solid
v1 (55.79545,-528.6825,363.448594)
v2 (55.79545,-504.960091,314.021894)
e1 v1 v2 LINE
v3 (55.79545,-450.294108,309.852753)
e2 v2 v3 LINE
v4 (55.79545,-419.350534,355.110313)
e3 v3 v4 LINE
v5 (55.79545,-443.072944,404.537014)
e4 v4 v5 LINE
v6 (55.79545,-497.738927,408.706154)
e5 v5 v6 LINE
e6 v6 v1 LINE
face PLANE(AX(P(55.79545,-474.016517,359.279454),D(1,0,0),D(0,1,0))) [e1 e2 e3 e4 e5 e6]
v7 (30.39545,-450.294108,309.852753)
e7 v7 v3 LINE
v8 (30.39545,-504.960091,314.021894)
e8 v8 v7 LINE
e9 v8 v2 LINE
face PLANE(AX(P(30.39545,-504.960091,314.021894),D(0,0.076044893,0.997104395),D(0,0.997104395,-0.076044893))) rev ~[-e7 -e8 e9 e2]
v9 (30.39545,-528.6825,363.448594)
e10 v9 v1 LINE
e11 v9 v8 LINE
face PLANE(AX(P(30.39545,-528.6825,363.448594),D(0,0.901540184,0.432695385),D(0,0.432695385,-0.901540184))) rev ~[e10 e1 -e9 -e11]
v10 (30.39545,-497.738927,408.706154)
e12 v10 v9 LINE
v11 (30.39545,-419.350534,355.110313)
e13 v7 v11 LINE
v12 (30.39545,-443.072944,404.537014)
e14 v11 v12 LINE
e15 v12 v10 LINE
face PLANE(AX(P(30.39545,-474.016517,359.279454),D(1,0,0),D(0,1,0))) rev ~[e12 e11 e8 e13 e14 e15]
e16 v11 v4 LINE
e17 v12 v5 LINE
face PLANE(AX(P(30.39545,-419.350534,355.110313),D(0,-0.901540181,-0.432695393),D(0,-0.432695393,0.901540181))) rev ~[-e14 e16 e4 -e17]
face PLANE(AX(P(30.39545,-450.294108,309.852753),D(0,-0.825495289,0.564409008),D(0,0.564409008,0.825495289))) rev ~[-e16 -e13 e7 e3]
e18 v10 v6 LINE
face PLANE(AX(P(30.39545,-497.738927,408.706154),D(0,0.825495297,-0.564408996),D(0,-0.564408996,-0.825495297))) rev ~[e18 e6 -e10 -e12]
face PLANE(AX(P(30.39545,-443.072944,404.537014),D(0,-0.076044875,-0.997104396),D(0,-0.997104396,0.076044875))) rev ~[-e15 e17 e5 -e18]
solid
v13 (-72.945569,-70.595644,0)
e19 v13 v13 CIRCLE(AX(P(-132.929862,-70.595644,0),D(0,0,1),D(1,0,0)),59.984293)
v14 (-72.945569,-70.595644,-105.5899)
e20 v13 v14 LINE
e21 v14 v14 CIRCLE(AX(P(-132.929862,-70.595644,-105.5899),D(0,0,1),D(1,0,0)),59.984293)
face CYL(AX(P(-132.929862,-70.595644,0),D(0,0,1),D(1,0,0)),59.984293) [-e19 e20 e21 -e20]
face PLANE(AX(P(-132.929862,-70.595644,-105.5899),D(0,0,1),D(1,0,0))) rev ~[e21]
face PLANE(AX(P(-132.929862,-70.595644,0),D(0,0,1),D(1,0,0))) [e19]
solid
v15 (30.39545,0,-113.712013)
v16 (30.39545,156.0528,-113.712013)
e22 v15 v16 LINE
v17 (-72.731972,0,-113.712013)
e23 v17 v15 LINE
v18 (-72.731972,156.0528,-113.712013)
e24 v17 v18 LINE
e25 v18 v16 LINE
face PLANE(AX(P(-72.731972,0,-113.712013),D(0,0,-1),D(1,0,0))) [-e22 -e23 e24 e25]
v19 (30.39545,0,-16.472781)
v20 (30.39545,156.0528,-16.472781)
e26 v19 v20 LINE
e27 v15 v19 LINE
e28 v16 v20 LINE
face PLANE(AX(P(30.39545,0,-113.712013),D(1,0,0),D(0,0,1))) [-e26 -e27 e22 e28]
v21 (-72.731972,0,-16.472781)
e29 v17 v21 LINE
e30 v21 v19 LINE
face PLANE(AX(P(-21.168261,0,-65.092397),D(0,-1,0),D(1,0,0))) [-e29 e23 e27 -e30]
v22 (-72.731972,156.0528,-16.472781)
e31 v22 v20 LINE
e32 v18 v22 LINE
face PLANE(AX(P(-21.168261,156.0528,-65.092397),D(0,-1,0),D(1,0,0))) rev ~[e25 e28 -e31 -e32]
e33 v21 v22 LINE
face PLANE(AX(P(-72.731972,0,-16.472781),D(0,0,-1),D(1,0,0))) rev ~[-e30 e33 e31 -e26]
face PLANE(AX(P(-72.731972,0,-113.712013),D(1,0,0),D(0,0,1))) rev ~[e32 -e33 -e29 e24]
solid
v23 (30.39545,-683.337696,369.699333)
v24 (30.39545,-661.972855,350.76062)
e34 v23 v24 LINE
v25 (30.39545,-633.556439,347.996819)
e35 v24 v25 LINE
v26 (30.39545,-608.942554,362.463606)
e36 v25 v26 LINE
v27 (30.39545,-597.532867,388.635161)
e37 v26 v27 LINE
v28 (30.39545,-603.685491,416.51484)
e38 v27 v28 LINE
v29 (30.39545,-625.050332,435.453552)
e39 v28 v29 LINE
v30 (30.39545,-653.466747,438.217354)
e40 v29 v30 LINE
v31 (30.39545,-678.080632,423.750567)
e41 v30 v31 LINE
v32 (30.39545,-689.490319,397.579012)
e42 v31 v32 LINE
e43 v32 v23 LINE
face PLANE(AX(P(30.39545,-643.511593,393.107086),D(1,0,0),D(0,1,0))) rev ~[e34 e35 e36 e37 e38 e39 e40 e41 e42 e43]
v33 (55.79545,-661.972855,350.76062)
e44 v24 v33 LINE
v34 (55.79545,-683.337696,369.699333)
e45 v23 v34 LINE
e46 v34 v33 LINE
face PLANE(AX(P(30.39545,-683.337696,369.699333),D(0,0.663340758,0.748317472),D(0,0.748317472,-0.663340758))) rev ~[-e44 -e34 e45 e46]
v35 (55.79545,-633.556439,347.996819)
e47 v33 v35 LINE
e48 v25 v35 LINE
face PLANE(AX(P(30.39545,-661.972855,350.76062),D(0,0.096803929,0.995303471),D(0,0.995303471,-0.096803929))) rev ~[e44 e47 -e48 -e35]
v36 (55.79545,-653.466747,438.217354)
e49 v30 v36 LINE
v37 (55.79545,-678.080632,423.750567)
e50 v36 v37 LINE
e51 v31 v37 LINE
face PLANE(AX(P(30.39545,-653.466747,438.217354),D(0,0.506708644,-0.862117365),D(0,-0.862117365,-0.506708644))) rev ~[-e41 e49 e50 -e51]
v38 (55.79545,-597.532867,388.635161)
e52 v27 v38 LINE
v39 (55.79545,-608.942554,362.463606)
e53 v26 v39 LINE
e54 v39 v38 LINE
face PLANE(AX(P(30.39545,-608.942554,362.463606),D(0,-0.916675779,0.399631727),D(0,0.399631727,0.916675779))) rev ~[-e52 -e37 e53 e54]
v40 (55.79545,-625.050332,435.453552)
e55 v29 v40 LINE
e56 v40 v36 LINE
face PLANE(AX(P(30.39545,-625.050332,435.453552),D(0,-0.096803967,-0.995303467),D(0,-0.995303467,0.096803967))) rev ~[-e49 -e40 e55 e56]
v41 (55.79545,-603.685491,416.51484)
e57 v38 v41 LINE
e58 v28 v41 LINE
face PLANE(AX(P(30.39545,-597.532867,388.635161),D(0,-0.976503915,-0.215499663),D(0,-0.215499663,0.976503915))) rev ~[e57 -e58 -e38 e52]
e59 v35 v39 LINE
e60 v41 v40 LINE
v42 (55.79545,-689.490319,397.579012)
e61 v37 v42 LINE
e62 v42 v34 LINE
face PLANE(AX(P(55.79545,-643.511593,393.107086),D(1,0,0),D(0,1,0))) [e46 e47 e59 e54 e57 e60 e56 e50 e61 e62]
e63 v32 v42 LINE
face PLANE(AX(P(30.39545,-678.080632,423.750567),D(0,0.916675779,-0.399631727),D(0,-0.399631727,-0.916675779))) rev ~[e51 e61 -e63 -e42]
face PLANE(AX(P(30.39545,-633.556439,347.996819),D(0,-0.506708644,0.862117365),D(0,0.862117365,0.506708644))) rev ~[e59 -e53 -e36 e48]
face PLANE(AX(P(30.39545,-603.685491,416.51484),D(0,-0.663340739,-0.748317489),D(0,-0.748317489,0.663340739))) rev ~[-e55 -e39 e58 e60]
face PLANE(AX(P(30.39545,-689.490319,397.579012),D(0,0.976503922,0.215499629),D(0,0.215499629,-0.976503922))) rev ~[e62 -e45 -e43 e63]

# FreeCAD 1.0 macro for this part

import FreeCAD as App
import Part
import Sketcher
from FreeCAD import Vector
Q = App.Units.Quantity

doc = App.newDocument("Part")
body = doc.addObject("PartDesign::Body", "Body")

# Sketch on XZ plane
sketch1 = doc.addObject("Sketcher::SketchObject", "Sketch")
body.addObject(sketch1)
sketch1.AttachmentSupport = (doc.XZ_Plane, [""])
sketch1.MapMode = "FlatFace"
sketch1.addGeometry(Part.LineSegment(Vector(-72.731972, -16.472781, 0), Vector(-72.731972, -113.712013, 0)), False)
sketch1.addGeometry(Part.LineSegment(Vector(-72.731972, -113.712013, 0), Vector(30.39545, -113.712013, 0)), False)
sketch1.addGeometry(Part.LineSegment(Vector(30.39545, -113.712013, 0), Vector(30.39545, -16.472781, 0)), False)
sketch1.addGeometry(Part.LineSegment(Vector(30.39545, -16.472781, 0), Vector(-72.731972, -16.472781, 0)), False)
sketch1.addConstraint(Sketcher.Constraint("Coincident", 0, 2, 1, 1))
sketch1.addConstraint(Sketcher.Constraint("Coincident", 1, 2, 2, 1))
sketch1.addConstraint(Sketcher.Constraint("Coincident", 2, 2, 3, 1))
sketch1.addConstraint(Sketcher.Constraint("Coincident", 3, 2, 0, 1))
sketch1.addConstraint(Sketcher.Constraint("Vertical", 0))
sketch1.addConstraint(Sketcher.Constraint("Horizontal", 1))
sketch1.addConstraint(Sketcher.Constraint("Vertical", 2))
sketch1.addConstraint(Sketcher.Constraint("Horizontal", 3))
sketch1.addConstraint(Sketcher.Constraint("DistanceX", 1, 1, 1, 2, Q("103.127422 mm")))
sketch1.addConstraint(Sketcher.Constraint("DistanceY", 0, 2, 0, 1, Q("97.239232 mm")))
sketch1.addConstraint(Sketcher.Constraint("DistanceX", 0, 2, -1, 1, Q("72.731972 mm")))
sketch1.addConstraint(Sketcher.Constraint("DistanceY", 2, 2, -1, 1, Q("16.472781 mm")))
pad1 = doc.addObject("PartDesign::Pad", "Pad")
body.addObject(pad1)
pad1.Profile = sketch1
pad1.Length = 156.0528
pad1.Reversed = True
body2 = doc.addObject("PartDesign::Body", "Body001")

# Sketch on XY plane
sketch2 = doc.addObject("Sketcher::SketchObject", "Sketch001")
body2.addObject(sketch2)
sketch2.AttachmentSupport = (doc.getObject("XY_Plane001"), [""])
sketch2.MapMode = "FlatFace"
sketch2.addGeometry(Part.Circle(Vector(-132.929862, -70.595644, 0), Vector(0, 0, 1), 59.984293), False)
sketch2.addConstraint(Sketcher.Constraint("Diameter", 0, Q("119.968586 mm")))
sketch2.addConstraint(Sketcher.Constraint("DistanceX", 0, 3, -1, 1, Q("132.929862 mm")))
sketch2.addConstraint(Sketcher.Constraint("DistanceY", 0, 3, -1, 1, Q("70.595644 mm")))
pad2 = doc.addObject("PartDesign::Pad", "Pad001")
body2.addObject(pad2)
pad2.Profile = sketch2
pad2.Length = 105.5899
pad2.Reversed = True
body3 = doc.addObject("PartDesign::Body", "Body002")
body3.AllowCompound = True

# Sketch on YZ plane
sketch3 = doc.addObject("Sketcher::SketchObject", "Sketch002")
body3.addObject(sketch3)
sketch3.AttachmentSupport = (doc.getObject("YZ_Plane002"), [""])
sketch3.MapMode = "FlatFace"
sketch3.AttachmentOffset = App.Placement(Vector(0, 0, 30.39545), App.Rotation())
sketch3.addGeometry(Part.LineSegment(Vector(-497.738927, 408.706154, 0), Vector(-528.6825, 363.448594, 0)), False)
sketch3.addGeometry(Part.LineSegment(Vector(-528.6825, 363.448594, 0), Vector(-504.960091, 314.021894, 0)), False)
sketch3.addGeometry(Part.LineSegment(Vector(-504.960091, 314.021894, 0), Vector(-450.294108, 309.852753, 0)), False)
sketch3.addGeometry(Part.LineSegment(Vector(-450.294108, 309.852753, 0), Vector(-419.350534, 355.110313, 0)), False)
sketch3.addGeometry(Part.LineSegment(Vector(-419.350534, 355.110313, 0), Vector(-443.072944, 404.537014, 0)), False)
sketch3.addGeometry(Part.LineSegment(Vector(-443.072944, 404.537014, 0), Vector(-497.738927, 408.706154, 0)), False)
sketch3.addGeometry(Part.LineSegment(Vector(-633.556439, 347.996819, 0), Vector(-608.942554, 362.463606, 0)), False)
sketch3.addGeometry(Part.LineSegment(Vector(-608.942554, 362.463606, 0), Vector(-597.532867, 388.635161, 0)), False)
sketch3.addGeometry(Part.LineSegment(Vector(-597.532867, 388.635161, 0), Vector(-603.685491, 416.51484, 0)), False)
sketch3.addGeometry(Part.LineSegment(Vector(-603.685491, 416.51484, 0), Vector(-625.050332, 435.453552, 0)), False)
sketch3.addGeometry(Part.LineSegment(Vector(-625.050332, 435.453552, 0), Vector(-653.466747, 438.217354, 0)), False)
sketch3.addGeometry(Part.LineSegment(Vector(-653.466747, 438.217354, 0), Vector(-678.080632, 423.750567, 0)), False)
sketch3.addGeometry(Part.LineSegment(Vector(-678.080632, 423.750567, 0), Vector(-689.490319, 397.579012, 0)), False)
sketch3.addGeometry(Part.LineSegment(Vector(-689.490319, 397.579012, 0), Vector(-683.337696, 369.699333, 0)), False)
sketch3.addGeometry(Part.LineSegment(Vector(-683.337696, 369.699333, 0), Vector(-661.972855, 350.76062, 0)), False)
sketch3.addGeometry(Part.LineSegment(Vector(-661.972855, 350.76062, 0), Vector(-633.556439, 347.996819, 0)), False)
sketch3.addConstraint(Sketcher.Constraint("Coincident", 0, 2, 1, 1))
sketch3.addConstraint(Sketcher.Constraint("Coincident", 1, 2, 2, 1))
sketch3.addConstraint(Sketcher.Constraint("Coincident", 2, 2, 3, 1))
sketch3.addConstraint(Sketcher.Constraint("Coincident", 3, 2, 4, 1))
sketch3.addConstraint(Sketcher.Constraint("Coincident", 4, 2, 5, 1))
sketch3.addConstraint(Sketcher.Constraint("Coincident", 5, 2, 0, 1))
sketch3.addConstraint(Sketcher.Constraint("Coincident", 6, 2, 7, 1))
sketch3.addConstraint(Sketcher.Constraint("Coincident", 7, 2, 8, 1))
sketch3.addConstraint(Sketcher.Constraint("Coincident", 8, 2, 9, 1))
sketch3.addConstraint(Sketcher.Constraint("Coincident", 9, 2, 10, 1))
sketch3.addConstraint(Sketcher.Constraint("Coincident", 10, 2, 11, 1))
sketch3.addConstraint(Sketcher.Constraint("Coincident", 11, 2, 12, 1))
sketch3.addConstraint(Sketcher.Constraint("Coincident", 12, 2, 13, 1))
sketch3.addConstraint(Sketcher.Constraint("Coincident", 13, 2, 14, 1))
sketch3.addConstraint(Sketcher.Constraint("Coincident", 14, 2, 15, 1))
sketch3.addConstraint(Sketcher.Constraint("Coincident", 15, 2, 6, 1))
sketch3.addConstraint(Sketcher.Constraint("Parallel", 0, 3))
sketch3.addConstraint(Sketcher.Constraint("Parallel", 1, 4))
sketch3.addConstraint(Sketcher.Constraint("Parallel", 2, 5))
sketch3.addConstraint(Sketcher.Constraint("Parallel", 6, 11))
sketch3.addConstraint(Sketcher.Constraint("Parallel", 7, 12))
sketch3.addConstraint(Sketcher.Constraint("Parallel", 8, 13))
sketch3.addConstraint(Sketcher.Constraint("Parallel", 9, 14))
sketch3.addConstraint(Sketcher.Constraint("Parallel", 10, 15))
sketch3.addConstraint(Sketcher.Constraint("Equal", 0, 1))
sketch3.addConstraint(Sketcher.Constraint("Equal", 1, 2))
sketch3.addConstraint(Sketcher.Constraint("Equal", 2, 3))
sketch3.addConstraint(Sketcher.Constraint("Equal", 6, 7))
sketch3.addConstraint(Sketcher.Constraint("Equal", 7, 8))
sketch3.addConstraint(Sketcher.Constraint("Equal", 8, 9))
sketch3.addConstraint(Sketcher.Constraint("Equal", 9, 10))
sketch3.addConstraint(Sketcher.Constraint("Equal", 10, 11))
sketch3.addConstraint(Sketcher.Constraint("Equal", 11, 12))
sketch3.addConstraint(Sketcher.Constraint("Equal", 12, 13))
sketch3.addConstraint(Sketcher.Constraint("DistanceX", 0, 2, -1, 1, Q("528.6825 mm")))
sketch3.addConstraint(Sketcher.Constraint("DistanceY", 1, 2, 0, 2, Q("49.4267 mm")))
sketch3.addConstraint(Sketcher.Constraint("DistanceY", 2, 2, 5, 2, Q("98.853401 mm")))
sketch3.addConstraint(Sketcher.Constraint("DistanceX", 8, 2, 1, 2, Q("98.7254 mm")))
sketch3.addConstraint(Sketcher.Constraint("DistanceY", 9, 2, 10, 2, Q("2.763802 mm")))
sketch3.addConstraint(Sketcher.Constraint("DistanceX", 11, 2, 9, 2, Q("53.0303 mm")))
sketch3.addConstraint(Sketcher.Constraint("DistanceX", 1, 2, -1, 1, Q("504.960091 mm")))
sketch3.addConstraint(Sketcher.Constraint("DistanceX", 2, 2, -1, 1, Q("450.294108 mm")))
sketch3.addConstraint(Sketcher.Constraint("DistanceY", -1, 1, 7, 2, Q("388.635161 mm")))
sketch3.addConstraint(Sketcher.Constraint("DistanceY", -1, 1, 8, 2, Q("416.51484 mm")))
sketch3.addConstraint(Sketcher.Constraint("DistanceX", 9, 2, -1, 1, Q("625.050332 mm")))
sketch3.addConstraint(Sketcher.Constraint("DistanceY", -1, 1, 9, 2, Q("435.453552 mm")))
sketch3.addConstraint(Sketcher.Constraint("DistanceX", 12, 2, -1, 1, Q("689.490319 mm")))
sketch3.addConstraint(Sketcher.Constraint("DistanceY", 0, 2, 10, 2, Q("74.76876 mm")))
pad3 = doc.addObject("PartDesign::Pad", "Pad002")
body3.addObject(pad3)
pad3.Profile = sketch3
pad3.Length = Q("1 in")

doc.recompute()
